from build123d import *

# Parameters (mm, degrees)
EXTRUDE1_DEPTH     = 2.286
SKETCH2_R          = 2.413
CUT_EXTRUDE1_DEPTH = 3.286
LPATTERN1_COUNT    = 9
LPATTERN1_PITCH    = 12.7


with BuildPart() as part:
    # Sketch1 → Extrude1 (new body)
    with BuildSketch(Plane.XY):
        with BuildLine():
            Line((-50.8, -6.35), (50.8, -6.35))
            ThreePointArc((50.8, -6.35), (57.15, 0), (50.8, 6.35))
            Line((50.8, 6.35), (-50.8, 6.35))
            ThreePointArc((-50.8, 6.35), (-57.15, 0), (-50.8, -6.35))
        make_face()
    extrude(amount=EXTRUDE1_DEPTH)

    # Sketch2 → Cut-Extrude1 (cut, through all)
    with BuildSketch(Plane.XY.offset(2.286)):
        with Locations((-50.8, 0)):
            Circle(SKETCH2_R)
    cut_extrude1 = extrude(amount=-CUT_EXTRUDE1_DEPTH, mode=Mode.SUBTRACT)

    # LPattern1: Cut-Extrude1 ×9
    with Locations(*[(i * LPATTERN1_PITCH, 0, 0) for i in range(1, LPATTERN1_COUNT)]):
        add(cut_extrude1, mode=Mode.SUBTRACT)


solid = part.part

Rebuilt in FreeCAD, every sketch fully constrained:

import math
import FreeCAD as App
import Part
import Sketcher
from FreeCAD import Vector
Q = App.Units.Quantity

doc = App.newDocument("Part")
params = doc.addObject("Spreadsheet::Sheet", "Params")
for row, (alias, value) in enumerate([
    ("sketch1_width", "4 in"),
    ("sketch1_radius", "0.25 in"),
    ("pad1_length", "0.09 in"),
    ("sketch2_diameter", "0.19 in"),
    ("linearpattern_pitch", "0.5 in"),
], start=1):
    params.set(f"A{row}", alias)
    params.set(f"B{row}", "=" + value)
    params.setAlias(f"B{row}", alias)

body = doc.addObject("PartDesign::Body", "Body")

# Sketch on XY plane
sketch1 = body.newObject("Sketcher::SketchObject", "Sketch")
sketch1.AttachmentSupport = (doc.getObject("XY_Plane"), [""])
sketch1.MapMode = "FlatFace"
sketch1.addGeometry([
    Part.LineSegment(Vector(-51, -6, 0), Vector(51, -6, 0)),
    Part.ArcOfCircle(Part.Circle(Vector(51, 0, 0), Vector(0, 0, 1), 6), math.radians(-90), math.radians(90)),
    Part.LineSegment(Vector(51, 6, 0), Vector(-51, 6, 0)),
    Part.ArcOfCircle(Part.Circle(Vector(-51, 0, 0), Vector(0, 0, 1), 6), math.radians(90), math.radians(270)),
], False)
sketch1.addConstraint([
    Sketcher.Constraint("Tangent", 0, 2, 1, 1),
    Sketcher.Constraint("Tangent", 1, 2, 2, 1),
    Sketcher.Constraint("Tangent", 2, 2, 3, 1),
    Sketcher.Constraint("Tangent", 3, 2, 0, 1),
    Sketcher.Constraint("Horizontal", 0),
    Sketcher.Constraint("Horizontal", 2),
    Sketcher.Constraint("Symmetric", 1, 3, 3, 3, -1, 1),
    Sketcher.Constraint("DistanceX", 0, 1, 0, 2, Q("4 in")),
    Sketcher.Constraint("Radius", 1, Q("0.25 in")),
])
sketch1.setExpression("Constraints[7]", "Params.sketch1_width")
sketch1.setExpression("Constraints[8]", "Params.sketch1_radius")
pad1 = body.newObject("PartDesign::Pad", "Pad")
pad1.Profile = sketch1
pad1.setExpression("Length", "Params.pad1_length")

# Sketch on XY plane
sketch2 = body.newObject("Sketcher::SketchObject", "Sketch001")
sketch2.AttachmentSupport = (doc.getObject("XY_Plane"), [""])
sketch2.MapMode = "FlatFace"
sketch2.AttachmentOffset = App.Placement(Vector(0, 0, 0.09 * 25.4), App.Rotation())
sketch2.addGeometry(Part.Circle(Vector(-50.8, 0, 0), Vector(0, 0, 1), 2.4), False)
sketch2.addConstraint([
    Sketcher.Constraint("PointOnObject", 0, 3, -1),
    Sketcher.Constraint("Diameter", 0, Q("0.19 in")),
    Sketcher.Constraint("DistanceX", 0, 3, -1, 1, Q("2 in")),
])
sketch2.setExpression("Constraints[1]", "Params.sketch2_diameter")
pocket1 = body.newObject("PartDesign::Pocket", "Pocket")
pocket1.Profile = sketch2
pocket1.Type = "ThroughAll"
doc.recompute()

linearpattern = body.newObject("PartDesign::LinearPattern", "LinearPattern")
linearpattern.Originals = [pocket1]
linearpattern.Direction = (doc.getObject("X_Axis"), [""])
linearpattern.Mode = "offset"
linearpattern.setExpression("Offset", "Params.linearpattern_pitch")
linearpattern.Occurrences = 9
body.Tip = linearpattern

doc.recompute()
